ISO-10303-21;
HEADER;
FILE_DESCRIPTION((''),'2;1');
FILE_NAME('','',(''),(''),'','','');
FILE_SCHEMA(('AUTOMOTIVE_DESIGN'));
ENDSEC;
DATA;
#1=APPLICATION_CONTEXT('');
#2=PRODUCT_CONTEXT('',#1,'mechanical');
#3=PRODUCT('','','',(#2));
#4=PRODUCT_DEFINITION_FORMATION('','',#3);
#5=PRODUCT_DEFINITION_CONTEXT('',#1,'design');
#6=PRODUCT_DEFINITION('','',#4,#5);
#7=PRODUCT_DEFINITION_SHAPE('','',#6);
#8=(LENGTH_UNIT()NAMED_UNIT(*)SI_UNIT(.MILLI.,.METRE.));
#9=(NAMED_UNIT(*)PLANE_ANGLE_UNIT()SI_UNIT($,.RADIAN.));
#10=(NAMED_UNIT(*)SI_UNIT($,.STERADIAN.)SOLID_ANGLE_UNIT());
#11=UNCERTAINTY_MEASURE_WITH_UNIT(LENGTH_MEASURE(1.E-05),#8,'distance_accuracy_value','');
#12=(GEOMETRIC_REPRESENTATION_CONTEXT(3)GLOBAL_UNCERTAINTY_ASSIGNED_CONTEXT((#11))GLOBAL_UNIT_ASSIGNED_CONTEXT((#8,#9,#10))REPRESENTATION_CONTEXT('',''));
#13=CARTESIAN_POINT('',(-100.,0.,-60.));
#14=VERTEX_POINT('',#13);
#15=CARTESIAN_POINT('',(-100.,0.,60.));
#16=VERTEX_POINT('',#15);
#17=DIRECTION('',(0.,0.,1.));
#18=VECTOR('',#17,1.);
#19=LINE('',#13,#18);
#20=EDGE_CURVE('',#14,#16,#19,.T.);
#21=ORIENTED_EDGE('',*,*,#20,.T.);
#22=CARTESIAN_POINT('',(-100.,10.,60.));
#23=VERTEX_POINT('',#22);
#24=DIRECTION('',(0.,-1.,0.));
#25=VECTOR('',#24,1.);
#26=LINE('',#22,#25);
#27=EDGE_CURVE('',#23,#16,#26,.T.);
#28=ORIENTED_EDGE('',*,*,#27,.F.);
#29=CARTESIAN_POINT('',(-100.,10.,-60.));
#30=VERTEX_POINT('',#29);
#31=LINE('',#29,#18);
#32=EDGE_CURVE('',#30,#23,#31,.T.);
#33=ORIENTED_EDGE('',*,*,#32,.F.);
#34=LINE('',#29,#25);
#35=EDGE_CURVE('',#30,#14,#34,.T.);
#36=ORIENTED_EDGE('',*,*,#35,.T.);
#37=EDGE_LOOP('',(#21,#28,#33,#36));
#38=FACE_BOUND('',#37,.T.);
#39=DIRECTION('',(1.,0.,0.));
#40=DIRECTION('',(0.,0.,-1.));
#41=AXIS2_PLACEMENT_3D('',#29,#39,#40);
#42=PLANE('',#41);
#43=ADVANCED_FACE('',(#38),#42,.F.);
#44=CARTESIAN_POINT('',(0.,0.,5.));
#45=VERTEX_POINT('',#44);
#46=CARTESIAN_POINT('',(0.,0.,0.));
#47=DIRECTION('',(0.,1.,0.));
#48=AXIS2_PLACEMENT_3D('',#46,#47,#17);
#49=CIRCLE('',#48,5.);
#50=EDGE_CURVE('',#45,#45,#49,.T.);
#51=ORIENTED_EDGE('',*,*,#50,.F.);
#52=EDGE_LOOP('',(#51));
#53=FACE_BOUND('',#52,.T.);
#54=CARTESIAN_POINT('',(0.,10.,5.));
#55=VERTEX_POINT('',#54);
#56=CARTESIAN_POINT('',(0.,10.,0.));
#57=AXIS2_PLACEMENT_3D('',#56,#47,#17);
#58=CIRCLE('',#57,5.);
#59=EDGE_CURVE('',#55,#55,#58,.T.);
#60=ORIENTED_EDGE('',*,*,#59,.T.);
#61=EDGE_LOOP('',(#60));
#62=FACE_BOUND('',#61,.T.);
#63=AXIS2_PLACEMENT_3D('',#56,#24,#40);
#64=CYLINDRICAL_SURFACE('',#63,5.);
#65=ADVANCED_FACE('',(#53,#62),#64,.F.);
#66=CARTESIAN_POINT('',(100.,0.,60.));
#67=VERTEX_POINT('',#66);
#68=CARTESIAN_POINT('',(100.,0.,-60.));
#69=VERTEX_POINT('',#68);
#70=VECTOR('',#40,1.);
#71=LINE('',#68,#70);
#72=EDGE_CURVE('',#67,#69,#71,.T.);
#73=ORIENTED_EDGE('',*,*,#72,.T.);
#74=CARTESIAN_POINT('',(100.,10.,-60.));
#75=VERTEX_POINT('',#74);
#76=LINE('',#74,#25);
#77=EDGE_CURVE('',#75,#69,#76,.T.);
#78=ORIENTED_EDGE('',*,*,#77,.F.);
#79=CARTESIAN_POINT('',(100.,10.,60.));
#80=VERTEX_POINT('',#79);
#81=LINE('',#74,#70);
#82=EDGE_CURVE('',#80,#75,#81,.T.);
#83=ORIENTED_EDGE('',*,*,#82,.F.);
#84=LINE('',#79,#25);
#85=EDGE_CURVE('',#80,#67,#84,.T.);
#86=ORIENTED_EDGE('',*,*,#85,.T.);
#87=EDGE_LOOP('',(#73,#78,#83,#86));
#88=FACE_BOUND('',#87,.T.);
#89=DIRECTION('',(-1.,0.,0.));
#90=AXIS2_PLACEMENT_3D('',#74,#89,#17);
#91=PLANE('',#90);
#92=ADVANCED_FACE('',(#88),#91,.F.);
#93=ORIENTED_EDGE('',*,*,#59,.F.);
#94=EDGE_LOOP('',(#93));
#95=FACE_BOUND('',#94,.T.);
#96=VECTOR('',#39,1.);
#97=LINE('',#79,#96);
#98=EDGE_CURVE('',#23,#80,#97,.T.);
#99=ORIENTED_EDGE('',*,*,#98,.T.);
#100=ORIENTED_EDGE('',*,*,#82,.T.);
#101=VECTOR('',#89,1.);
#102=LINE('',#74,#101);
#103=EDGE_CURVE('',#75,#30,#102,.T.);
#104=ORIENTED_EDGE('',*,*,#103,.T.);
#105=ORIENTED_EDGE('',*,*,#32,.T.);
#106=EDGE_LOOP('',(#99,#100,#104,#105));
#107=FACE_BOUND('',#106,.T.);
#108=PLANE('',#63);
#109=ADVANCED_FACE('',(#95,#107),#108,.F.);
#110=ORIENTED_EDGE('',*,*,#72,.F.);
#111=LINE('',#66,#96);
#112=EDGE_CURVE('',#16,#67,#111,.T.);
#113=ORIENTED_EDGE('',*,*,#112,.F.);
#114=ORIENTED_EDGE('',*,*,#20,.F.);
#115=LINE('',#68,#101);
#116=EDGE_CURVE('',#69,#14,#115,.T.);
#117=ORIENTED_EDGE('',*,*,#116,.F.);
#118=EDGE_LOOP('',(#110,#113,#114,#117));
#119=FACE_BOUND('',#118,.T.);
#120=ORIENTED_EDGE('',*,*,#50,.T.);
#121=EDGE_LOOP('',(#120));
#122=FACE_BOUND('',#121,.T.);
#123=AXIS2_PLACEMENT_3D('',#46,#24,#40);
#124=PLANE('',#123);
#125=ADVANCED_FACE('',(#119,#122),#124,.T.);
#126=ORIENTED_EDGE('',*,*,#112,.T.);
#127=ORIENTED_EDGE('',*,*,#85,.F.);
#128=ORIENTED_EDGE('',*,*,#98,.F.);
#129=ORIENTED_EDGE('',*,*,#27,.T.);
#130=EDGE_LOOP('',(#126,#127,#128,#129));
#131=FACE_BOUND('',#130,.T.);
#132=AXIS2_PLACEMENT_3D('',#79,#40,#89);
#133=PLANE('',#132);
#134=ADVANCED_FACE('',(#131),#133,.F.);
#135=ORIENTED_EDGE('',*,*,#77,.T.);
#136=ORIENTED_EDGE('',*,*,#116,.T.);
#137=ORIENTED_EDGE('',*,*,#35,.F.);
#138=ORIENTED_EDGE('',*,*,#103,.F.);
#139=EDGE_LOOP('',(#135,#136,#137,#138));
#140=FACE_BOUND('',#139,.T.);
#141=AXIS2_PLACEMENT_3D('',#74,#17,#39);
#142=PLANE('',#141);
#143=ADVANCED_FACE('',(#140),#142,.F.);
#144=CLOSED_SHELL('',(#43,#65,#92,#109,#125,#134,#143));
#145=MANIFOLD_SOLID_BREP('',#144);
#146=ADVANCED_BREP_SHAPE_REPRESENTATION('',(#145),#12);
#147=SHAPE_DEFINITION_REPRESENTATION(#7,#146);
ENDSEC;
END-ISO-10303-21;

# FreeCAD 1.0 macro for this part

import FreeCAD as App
import Part
import Sketcher

doc = App.newDocument("Part")
params = doc.addObject("Spreadsheet::Sheet", "Params")
for row, (alias, value) in enumerate([
    ("sketch1_diameter", "10 mm"),
    ("sketch1_width", "200 mm"),
    ("sketch1_height", "120 mm"),
    ("pad1_length", "10 mm"),
], start=1):
    params.set(f"A{row}", alias)
    params.set(f"B{row}", "=" + value)
    params.setAlias(f"B{row}", alias)

body = doc.addObject("PartDesign::Body", "Body")

sketch1 = doc.addObject("Sketcher::SketchObject", "Sketch")
body.addObject(sketch1)
sketch1.AttachmentSupport = (doc.XZ_Plane, [""])
sketch1.MapMode = "FlatFace"
sketch1.addGeometry(Part.LineSegment(App.Vector(-100, -60, 0), App.Vector(-100, 60, 0)), False)
sketch1.addGeometry(Part.LineSegment(App.Vector(-100, 60, 0), App.Vector(100, 60, 0)), False)
sketch1.addGeometry(Part.LineSegment(App.Vector(100, 60, 0), App.Vector(100, -60, 0)), False)
sketch1.addGeometry(Part.LineSegment(App.Vector(100, -60, 0), App.Vector(-100, -60, 0)), False)
sketch1.addGeometry(Part.Circle(App.Vector(0, 0, 0), App.Vector(0, 0, 1), 5), False)
sketch1.addConstraint(Sketcher.Constraint("Coincident", 0, 2, 1, 1))
sketch1.addConstraint(Sketcher.Constraint("Coincident", 1, 2, 2, 1))
sketch1.addConstraint(Sketcher.Constraint("Coincident", 2, 2, 3, 1))
sketch1.addConstraint(Sketcher.Constraint("Coincident", 3, 2, 0, 1))
sketch1.addConstraint(Sketcher.Constraint("Vertical", 0))
sketch1.addConstraint(Sketcher.Constraint("Horizontal", 1))
sketch1.addConstraint(Sketcher.Constraint("Vertical", 2))
sketch1.addConstraint(Sketcher.Constraint("Horizontal", 3))
sketch1.addConstraint(Sketcher.Constraint("Coincident", 4, 3, -1, 1))
sketch1.addConstraint(Sketcher.Constraint("Symmetric", 0, 2, 2, 2, -1, 1))
sketch1.addConstraint(Sketcher.Constraint("Diameter", 4, 10.0))
sketch1.addConstraint(Sketcher.Constraint("DistanceX", 1, 1, 1, 2, 200.0))
sketch1.addConstraint(Sketcher.Constraint("DistanceY", 0, 1, 0, 2, 120.0))
sketch1.setExpression("Constraints[10]", "Params.sketch1_diameter")
sketch1.setExpression("Constraints[11]", "Params.sketch1_width")
sketch1.setExpression("Constraints[12]", "Params.sketch1_height")
pad1 = doc.addObject("PartDesign::Pad", "Pad")
body.addObject(pad1)
pad1.Profile = sketch1
pad1.setExpression("Length", "Params.pad1_length")
pad1.Reversed = True

doc.recompute()
